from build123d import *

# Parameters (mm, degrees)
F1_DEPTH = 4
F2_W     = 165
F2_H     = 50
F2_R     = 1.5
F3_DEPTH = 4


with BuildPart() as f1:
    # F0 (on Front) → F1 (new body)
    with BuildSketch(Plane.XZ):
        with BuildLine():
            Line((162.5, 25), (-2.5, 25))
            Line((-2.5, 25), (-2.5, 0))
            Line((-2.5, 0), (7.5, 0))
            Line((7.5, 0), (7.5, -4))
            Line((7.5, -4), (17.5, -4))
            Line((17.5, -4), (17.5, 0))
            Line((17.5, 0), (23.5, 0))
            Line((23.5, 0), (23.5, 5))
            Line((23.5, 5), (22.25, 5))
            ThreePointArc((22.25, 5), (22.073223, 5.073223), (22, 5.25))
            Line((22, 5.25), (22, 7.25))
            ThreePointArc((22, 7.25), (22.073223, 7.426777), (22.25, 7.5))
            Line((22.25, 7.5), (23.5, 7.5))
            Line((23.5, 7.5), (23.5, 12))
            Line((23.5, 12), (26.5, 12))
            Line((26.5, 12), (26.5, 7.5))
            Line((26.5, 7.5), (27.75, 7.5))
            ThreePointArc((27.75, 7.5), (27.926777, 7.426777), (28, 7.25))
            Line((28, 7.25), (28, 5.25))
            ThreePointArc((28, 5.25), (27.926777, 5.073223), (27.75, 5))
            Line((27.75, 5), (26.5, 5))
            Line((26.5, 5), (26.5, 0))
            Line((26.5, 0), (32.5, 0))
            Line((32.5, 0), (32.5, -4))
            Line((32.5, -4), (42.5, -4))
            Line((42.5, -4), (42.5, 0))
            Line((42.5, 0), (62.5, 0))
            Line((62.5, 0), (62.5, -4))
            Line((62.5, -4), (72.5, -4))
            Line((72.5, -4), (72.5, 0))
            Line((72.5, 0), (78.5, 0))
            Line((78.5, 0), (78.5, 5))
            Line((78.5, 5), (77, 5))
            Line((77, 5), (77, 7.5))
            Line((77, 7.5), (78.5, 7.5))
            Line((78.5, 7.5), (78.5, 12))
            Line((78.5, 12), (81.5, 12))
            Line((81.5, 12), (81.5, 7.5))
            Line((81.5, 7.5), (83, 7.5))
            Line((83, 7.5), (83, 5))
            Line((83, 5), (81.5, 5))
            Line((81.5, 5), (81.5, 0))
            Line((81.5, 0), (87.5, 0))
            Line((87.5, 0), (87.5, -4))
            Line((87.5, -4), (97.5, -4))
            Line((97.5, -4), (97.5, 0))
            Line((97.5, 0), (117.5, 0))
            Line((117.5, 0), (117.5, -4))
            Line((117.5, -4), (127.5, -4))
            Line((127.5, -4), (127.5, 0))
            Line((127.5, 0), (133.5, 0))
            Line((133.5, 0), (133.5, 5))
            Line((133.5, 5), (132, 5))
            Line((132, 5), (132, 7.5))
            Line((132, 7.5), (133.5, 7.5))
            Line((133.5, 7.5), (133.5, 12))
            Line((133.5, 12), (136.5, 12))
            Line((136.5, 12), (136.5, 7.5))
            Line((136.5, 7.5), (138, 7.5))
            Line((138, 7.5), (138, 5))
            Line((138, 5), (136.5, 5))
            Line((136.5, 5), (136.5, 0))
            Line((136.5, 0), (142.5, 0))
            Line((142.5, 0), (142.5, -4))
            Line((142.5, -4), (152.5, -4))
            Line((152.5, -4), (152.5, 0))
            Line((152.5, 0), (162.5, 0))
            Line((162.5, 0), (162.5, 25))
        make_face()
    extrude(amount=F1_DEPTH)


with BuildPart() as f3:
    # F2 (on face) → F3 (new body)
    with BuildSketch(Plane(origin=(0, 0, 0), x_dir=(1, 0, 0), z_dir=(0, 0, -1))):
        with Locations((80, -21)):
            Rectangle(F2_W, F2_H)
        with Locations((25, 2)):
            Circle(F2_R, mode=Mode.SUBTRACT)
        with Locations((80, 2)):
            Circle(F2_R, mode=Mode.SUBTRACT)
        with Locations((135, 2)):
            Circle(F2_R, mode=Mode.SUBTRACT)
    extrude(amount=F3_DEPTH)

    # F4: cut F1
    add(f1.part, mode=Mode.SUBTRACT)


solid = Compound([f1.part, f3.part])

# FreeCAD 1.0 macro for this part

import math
import FreeCAD as App
import Part
import Sketcher

V = App.Vector
Q = App.Units.Quantity

doc = App.newDocument("Part")
body = doc.addObject("PartDesign::Body", "Body")

sketch1 = body.newObject("Sketcher::SketchObject", "Sketch")
sketch1.AttachmentSupport = (doc.getObject("XZ_Plane"), [""])
sketch1.MapMode = "FlatFace"
sketch1.addGeometry(Part.LineSegment(V(162.5, 25, 0), V(-2.5, 25, 0)), False)
sketch1.addGeometry(Part.LineSegment(V(-2.5, 25, 0), V(-2.5, 0, 0)), False)
sketch1.addGeometry(Part.LineSegment(V(-2.5, 0, 0), V(7.5, 0, 0)), False)
sketch1.addGeometry(Part.LineSegment(V(7.5, 0, 0), V(7.5, -4, 0)), False)
sketch1.addGeometry(Part.LineSegment(V(7.5, -4, 0), V(17.5, -4, 0)), False)
sketch1.addGeometry(Part.LineSegment(V(17.5, -4, 0), V(17.5, 0, 0)), False)
sketch1.addGeometry(Part.LineSegment(V(17.5, 0, 0), V(23.5, 0, 0)), False)
sketch1.addGeometry(Part.LineSegment(V(23.5, 0, 0), V(23.5, 5, 0)), False)
sketch1.addGeometry(Part.LineSegment(V(23.5, 5, 0), V(22.25, 5, 0)), False)
sketch1.addGeometry(Part.ArcOfCircle(Part.Circle(V(22.25, 5.25, 0), V(0, 0, 1), 0.25), math.radians(180), math.radians(270)), False)
sketch1.addGeometry(Part.LineSegment(V(22, 5.25, 0), V(22, 7.25, 0)), False)
sketch1.addGeometry(Part.ArcOfCircle(Part.Circle(V(22.25, 7.25, 0), V(0, 0, 1), 0.25), math.radians(90), math.radians(180)), False)
sketch1.addGeometry(Part.LineSegment(V(22.25, 7.5, 0), V(23.5, 7.5, 0)), False)
sketch1.addGeometry(Part.LineSegment(V(23.5, 7.5, 0), V(23.5, 12, 0)), False)
sketch1.addGeometry(Part.LineSegment(V(23.5, 12, 0), V(26.5, 12, 0)), False)
sketch1.addGeometry(Part.LineSegment(V(26.5, 12, 0), V(26.5, 7.5, 0)), False)
sketch1.addGeometry(Part.LineSegment(V(26.5, 7.5, 0), V(27.75, 7.5, 0)), False)
sketch1.addGeometry(Part.ArcOfCircle(Part.Circle(V(27.75, 7.25, 0), V(0, 0, 1), 0.25), math.radians(0), math.radians(90)), False)
sketch1.addGeometry(Part.LineSegment(V(28, 7.25, 0), V(28, 5.25, 0)), False)
sketch1.addGeometry(Part.ArcOfCircle(Part.Circle(V(27.75, 5.25, 0), V(0, 0, 1), 0.25), math.radians(-90), math.radians(0)), False)
sketch1.addGeometry(Part.LineSegment(V(27.75, 5, 0), V(26.5, 5, 0)), False)
sketch1.addGeometry(Part.LineSegment(V(26.5, 5, 0), V(26.5, 0, 0)), False)
sketch1.addGeometry(Part.LineSegment(V(26.5, 0, 0), V(32.5, 0, 0)), False)
sketch1.addGeometry(Part.LineSegment(V(32.5, 0, 0), V(32.5, -4, 0)), False)
sketch1.addGeometry(Part.LineSegment(V(32.5, -4, 0), V(42.5, -4, 0)), False)
sketch1.addGeometry(Part.LineSegment(V(42.5, -4, 0), V(42.5, 0, 0)), False)
sketch1.addGeometry(Part.LineSegment(V(42.5, 0, 0), V(62.5, 0, 0)), False)
sketch1.addGeometry(Part.LineSegment(V(62.5, 0, 0), V(62.5, -4, 0)), False)
sketch1.addGeometry(Part.LineSegment(V(62.5, -4, 0), V(72.5, -4, 0)), False)
sketch1.addGeometry(Part.LineSegment(V(72.5, -4, 0), V(72.5, 0, 0)), False)
sketch1.addGeometry(Part.LineSegment(V(72.5, 0, 0), V(78.5, 0, 0)), False)
sketch1.addGeometry(Part.LineSegment(V(78.5, 0, 0), V(78.5, 5, 0)), False)
sketch1.addGeometry(Part.LineSegment(V(78.5, 5, 0), V(77, 5, 0)), False)
sketch1.addGeometry(Part.LineSegment(V(77, 5, 0), V(77, 7.5, 0)), False)
sketch1.addGeometry(Part.LineSegment(V(77, 7.5, 0), V(78.5, 7.5, 0)), False)
sketch1.addGeometry(Part.LineSegment(V(78.5, 7.5, 0), V(78.5, 12, 0)), False)
sketch1.addGeometry(Part.LineSegment(V(78.5, 12, 0), V(81.5, 12, 0)), False)
sketch1.addGeometry(Part.LineSegment(V(81.5, 12, 0), V(81.5, 7.5, 0)), False)
sketch1.addGeometry(Part.LineSegment(V(81.5, 7.5, 0), V(83, 7.5, 0)), False)
sketch1.addGeometry(Part.LineSegment(V(83, 7.5, 0), V(83, 5, 0)), False)
sketch1.addGeometry(Part.LineSegment(V(83, 5, 0), V(81.5, 5, 0)), False)
sketch1.addGeometry(Part.LineSegment(V(81.5, 5, 0), V(81.5, 0, 0)), False)
sketch1.addGeometry(Part.LineSegment(V(81.5, 0, 0), V(87.5, 0, 0)), False)
sketch1.addGeometry(Part.LineSegment(V(87.5, 0, 0), V(87.5, -4, 0)), False)
sketch1.addGeometry(Part.LineSegment(V(87.5, -4, 0), V(97.5, -4, 0)), False)
sketch1.addGeometry(Part.LineSegment(V(97.5, -4, 0), V(97.5, 0, 0)), False)
sketch1.addGeometry(Part.LineSegment(V(97.5, 0, 0), V(117.5, 0, 0)), False)
sketch1.addGeometry(Part.LineSegment(V(117.5, 0, 0), V(117.5, -4, 0)), False)
sketch1.addGeometry(Part.LineSegment(V(117.5, -4, 0), V(127.5, -4, 0)), False)
sketch1.addGeometry(Part.LineSegment(V(127.5, -4, 0), V(127.5, 0, 0)), False)
sketch1.addGeometry(Part.LineSegment(V(127.5, 0, 0), V(133.5, 0, 0)), False)
sketch1.addGeometry(Part.LineSegment(V(133.5, 0, 0), V(133.5, 5, 0)), False)
sketch1.addGeometry(Part.LineSegment(V(133.5, 5, 0), V(132, 5, 0)), False)
sketch1.addGeometry(Part.LineSegment(V(132, 5, 0), V(132, 7.5, 0)), False)
sketch1.addGeometry(Part.LineSegment(V(132, 7.5, 0), V(133.5, 7.5, 0)), False)
sketch1.addGeometry(Part.LineSegment(V(133.5, 7.5, 0), V(133.5, 12, 0)), False)
sketch1.addGeometry(Part.LineSegment(V(133.5, 12, 0), V(136.5, 12, 0)), False)
sketch1.addGeometry(Part.LineSegment(V(136.5, 12, 0), V(136.5, 7.5, 0)), False)
sketch1.addGeometry(Part.LineSegment(V(136.5, 7.5, 0), V(138, 7.5, 0)), False)
sketch1.addGeometry(Part.LineSegment(V(138, 7.5, 0), V(138, 5, 0)), False)
sketch1.addGeometry(Part.LineSegment(V(138, 5, 0), V(136.5, 5, 0)), False)
sketch1.addGeometry(Part.LineSegment(V(136.5, 5, 0), V(136.5, 0, 0)), False)
sketch1.addGeometry(Part.LineSegment(V(136.5, 0, 0), V(142.5, 0, 0)), False)
sketch1.addGeometry(Part.LineSegment(V(142.5, 0, 0), V(142.5, -4, 0)), False)
sketch1.addGeometry(Part.LineSegment(V(142.5, -4, 0), V(152.5, -4, 0)), False)
sketch1.addGeometry(Part.LineSegment(V(152.5, -4, 0), V(152.5, 0, 0)), False)
sketch1.addGeometry(Part.LineSegment(V(152.5, 0, 0), V(162.5, 0, 0)), False)
sketch1.addGeometry(Part.LineSegment(V(162.5, 0, 0), V(162.5, 25, 0)), False)
sketch1.addConstraint(Sketcher.Constraint("Coincident", 0, 2, 1, 1))
sketch1.addConstraint(Sketcher.Constraint("Coincident", 1, 2, 2, 1))
sketch1.addConstraint(Sketcher.Constraint("Coincident", 2, 2, 3, 1))
sketch1.addConstraint(Sketcher.Constraint("Coincident", 3, 2, 4, 1))
sketch1.addConstraint(Sketcher.Constraint("Coincident", 4, 2, 5, 1))
sketch1.addConstraint(Sketcher.Constraint("Coincident", 5, 2, 6, 1))
sketch1.addConstraint(Sketcher.Constraint("Coincident", 6, 2, 7, 1))
sketch1.addConstraint(Sketcher.Constraint("Coincident", 7, 2, 8, 1))
sketch1.addConstraint(Sketcher.Constraint("Coincident", 8, 2, 9, 2))
sketch1.addConstraint(Sketcher.Constraint("Coincident", 9, 1, 10, 1))
sketch1.addConstraint(Sketcher.Constraint("Coincident", 10, 2, 11, 2))
sketch1.addConstraint(Sketcher.Constraint("Coincident", 11, 1, 12, 1))
sketch1.addConstraint(Sketcher.Constraint("Coincident", 12, 2, 13, 1))
sketch1.addConstraint(Sketcher.Constraint("Coincident", 13, 2, 14, 1))
sketch1.addConstraint(Sketcher.Constraint("Coincident", 14, 2, 15, 1))
sketch1.addConstraint(Sketcher.Constraint("Coincident", 15, 2, 16, 1))
sketch1.addConstraint(Sketcher.Constraint("Coincident", 16, 2, 17, 2))
sketch1.addConstraint(Sketcher.Constraint("Coincident", 17, 1, 18, 1))
sketch1.addConstraint(Sketcher.Constraint("Coincident", 18, 2, 19, 2))
sketch1.addConstraint(Sketcher.Constraint("Coincident", 19, 1, 20, 1))
sketch1.addConstraint(Sketcher.Constraint("Coincident", 20, 2, 21, 1))
sketch1.addConstraint(Sketcher.Constraint("Coincident", 21, 2, 22, 1))
sketch1.addConstraint(Sketcher.Constraint("Coincident", 22, 2, 23, 1))
sketch1.addConstraint(Sketcher.Constraint("Coincident", 23, 2, 24, 1))
sketch1.addConstraint(Sketcher.Constraint("Coincident", 24, 2, 25, 1))
sketch1.addConstraint(Sketcher.Constraint("Coincident", 25, 2, 26, 1))
sketch1.addConstraint(Sketcher.Constraint("Coincident", 26, 2, 27, 1))
sketch1.addConstraint(Sketcher.Constraint("Coincident", 27, 2, 28, 1))
sketch1.addConstraint(Sketcher.Constraint("Coincident", 28, 2, 29, 1))
sketch1.addConstraint(Sketcher.Constraint("Coincident", 29, 2, 30, 1))
sketch1.addConstraint(Sketcher.Constraint("Coincident", 30, 2, 31, 1))
sketch1.addConstraint(Sketcher.Constraint("Coincident", 31, 2, 32, 1))
sketch1.addConstraint(Sketcher.Constraint("Coincident", 32, 2, 33, 1))
sketch1.addConstraint(Sketcher.Constraint("Coincident", 33, 2, 34, 1))
sketch1.addConstraint(Sketcher.Constraint("Coincident", 34, 2, 35, 1))
sketch1.addConstraint(Sketcher.Constraint("Coincident", 35, 2, 36, 1))
sketch1.addConstraint(Sketcher.Constraint("Coincident", 36, 2, 37, 1))
sketch1.addConstraint(Sketcher.Constraint("Coincident", 37, 2, 38, 1))
sketch1.addConstraint(Sketcher.Constraint("Coincident", 38, 2, 39, 1))
sketch1.addConstraint(Sketcher.Constraint("Coincident", 39, 2, 40, 1))
sketch1.addConstraint(Sketcher.Constraint("Coincident", 40, 2, 41, 1))
sketch1.addConstraint(Sketcher.Constraint("Coincident", 41, 2, 42, 1))
sketch1.addConstraint(Sketcher.Constraint("Coincident", 42, 2, 43, 1))
sketch1.addConstraint(Sketcher.Constraint("Coincident", 43, 2, 44, 1))
sketch1.addConstraint(Sketcher.Constraint("Coincident", 44, 2, 45, 1))
sketch1.addConstraint(Sketcher.Constraint("Coincident", 45, 2, 46, 1))
sketch1.addConstraint(Sketcher.Constraint("Coincident", 46, 2, 47, 1))
sketch1.addConstraint(Sketcher.Constraint("Coincident", 47, 2, 48, 1))
sketch1.addConstraint(Sketcher.Constraint("Coincident", 48, 2, 49, 1))
sketch1.addConstraint(Sketcher.Constraint("Coincident", 49, 2, 50, 1))
sketch1.addConstraint(Sketcher.Constraint("Coincident", 50, 2, 51, 1))
sketch1.addConstraint(Sketcher.Constraint("Coincident", 51, 2, 52, 1))
sketch1.addConstraint(Sketcher.Constraint("Coincident", 52, 2, 53, 1))
sketch1.addConstraint(Sketcher.Constraint("Coincident", 53, 2, 54, 1))
sketch1.addConstraint(Sketcher.Constraint("Coincident", 54, 2, 55, 1))
sketch1.addConstraint(Sketcher.Constraint("Coincident", 55, 2, 56, 1))
sketch1.addConstraint(Sketcher.Constraint("Coincident", 56, 2, 57, 1))
sketch1.addConstraint(Sketcher.Constraint("Coincident", 57, 2, 58, 1))
sketch1.addConstraint(Sketcher.Constraint("Coincident", 58, 2, 59, 1))
sketch1.addConstraint(Sketcher.Constraint("Coincident", 59, 2, 60, 1))
sketch1.addConstraint(Sketcher.Constraint("Coincident", 60, 2, 61, 1))
sketch1.addConstraint(Sketcher.Constraint("Coincident", 61, 2, 62, 1))
sketch1.addConstraint(Sketcher.Constraint("Coincident", 62, 2, 63, 1))
sketch1.addConstraint(Sketcher.Constraint("Coincident", 63, 2, 64, 1))
sketch1.addConstraint(Sketcher.Constraint("Coincident", 64, 2, 65, 1))
sketch1.addConstraint(Sketcher.Constraint("Coincident", 65, 2, 66, 1))
sketch1.addConstraint(Sketcher.Constraint("Coincident", 66, 2, 67, 1))
sketch1.addConstraint(Sketcher.Constraint("Coincident", 67, 2, 0, 1))
sketch1.addConstraint(Sketcher.Constraint("Horizontal", 0))
sketch1.addConstraint(Sketcher.Constraint("Vertical", 1))
sketch1.addConstraint(Sketcher.Constraint("Horizontal", 2))
sketch1.addConstraint(Sketcher.Constraint("Vertical", 3))
sketch1.addConstraint(Sketcher.Constraint("Horizontal", 4))
sketch1.addConstraint(Sketcher.Constraint("Vertical", 5))
sketch1.addConstraint(Sketcher.Constraint("Horizontal", 6))
sketch1.addConstraint(Sketcher.Constraint("Vertical", 7))
sketch1.addConstraint(Sketcher.Constraint("Horizontal", 8))
sketch1.addConstraint(Sketcher.Constraint("Vertical", 10))
sketch1.addConstraint(Sketcher.Constraint("Horizontal", 12))
sketch1.addConstraint(Sketcher.Constraint("Vertical", 13))
sketch1.addConstraint(Sketcher.Constraint("Horizontal", 14))
sketch1.addConstraint(Sketcher.Constraint("Vertical", 15))
sketch1.addConstraint(Sketcher.Constraint("Horizontal", 16))
sketch1.addConstraint(Sketcher.Constraint("Vertical", 18))
sketch1.addConstraint(Sketcher.Constraint("Horizontal", 20))
sketch1.addConstraint(Sketcher.Constraint("Vertical", 21))
sketch1.addConstraint(Sketcher.Constraint("Horizontal", 22))
sketch1.addConstraint(Sketcher.Constraint("Vertical", 23))
sketch1.addConstraint(Sketcher.Constraint("Horizontal", 24))
sketch1.addConstraint(Sketcher.Constraint("Vertical", 25))
sketch1.addConstraint(Sketcher.Constraint("Horizontal", 26))
sketch1.addConstraint(Sketcher.Constraint("Vertical", 27))
sketch1.addConstraint(Sketcher.Constraint("Horizontal", 28))
sketch1.addConstraint(Sketcher.Constraint("Vertical", 29))
sketch1.addConstraint(Sketcher.Constraint("Horizontal", 30))
sketch1.addConstraint(Sketcher.Constraint("Vertical", 31))
sketch1.addConstraint(Sketcher.Constraint("Horizontal", 32))
sketch1.addConstraint(Sketcher.Constraint("Vertical", 33))
sketch1.addConstraint(Sketcher.Constraint("Horizontal", 34))
sketch1.addConstraint(Sketcher.Constraint("Vertical", 35))
sketch1.addConstraint(Sketcher.Constraint("Horizontal", 36))
sketch1.addConstraint(Sketcher.Constraint("Vertical", 37))
sketch1.addConstraint(Sketcher.Constraint("Horizontal", 38))
sketch1.addConstraint(Sketcher.Constraint("Vertical", 39))
sketch1.addConstraint(Sketcher.Constraint("Horizontal", 40))
sketch1.addConstraint(Sketcher.Constraint("Vertical", 41))
sketch1.addConstraint(Sketcher.Constraint("Horizontal", 42))
sketch1.addConstraint(Sketcher.Constraint("Vertical", 43))
sketch1.addConstraint(Sketcher.Constraint("Horizontal", 44))
sketch1.addConstraint(Sketcher.Constraint("Vertical", 45))
sketch1.addConstraint(Sketcher.Constraint("Horizontal", 46))
sketch1.addConstraint(Sketcher.Constraint("Vertical", 47))
sketch1.addConstraint(Sketcher.Constraint("Horizontal", 48))
sketch1.addConstraint(Sketcher.Constraint("Vertical", 49))
sketch1.addConstraint(Sketcher.Constraint("Horizontal", 50))
sketch1.addConstraint(Sketcher.Constraint("Vertical", 51))
sketch1.addConstraint(Sketcher.Constraint("Horizontal", 52))
sketch1.addConstraint(Sketcher.Constraint("Vertical", 53))
sketch1.addConstraint(Sketcher.Constraint("Horizontal", 54))
sketch1.addConstraint(Sketcher.Constraint("Vertical", 55))
sketch1.addConstraint(Sketcher.Constraint("Horizontal", 56))
sketch1.addConstraint(Sketcher.Constraint("Vertical", 57))
sketch1.addConstraint(Sketcher.Constraint("Horizontal", 58))
sketch1.addConstraint(Sketcher.Constraint("Vertical", 59))
sketch1.addConstraint(Sketcher.Constraint("Horizontal", 60))
sketch1.addConstraint(Sketcher.Constraint("Vertical", 61))
sketch1.addConstraint(Sketcher.Constraint("Horizontal", 62))
sketch1.addConstraint(Sketcher.Constraint("Vertical", 63))
sketch1.addConstraint(Sketcher.Constraint("Horizontal", 64))
sketch1.addConstraint(Sketcher.Constraint("Vertical", 65))
sketch1.addConstraint(Sketcher.Constraint("Horizontal", 66))
sketch1.addConstraint(Sketcher.Constraint("Vertical", 67))
sketch1.addConstraint(Sketcher.Constraint("Equal", 9, 11))
sketch1.addConstraint(Sketcher.Constraint("Equal", 11, 17))
sketch1.addConstraint(Sketcher.Constraint("Equal", 17, 19))
sketch1.addConstraint(Sketcher.Constraint("PointOnObject", 1, 2, -1))
sketch1.addConstraint(Sketcher.Constraint("PointOnObject", 5, 2, -1))
sketch1.addConstraint(Sketcher.Constraint("PointOnObject", 21, 2, -1))
sketch1.addConstraint(Sketcher.Constraint("PointOnObject", 25, 2, -1))
sketch1.addConstraint(Sketcher.Constraint("PointOnObject", 29, 2, -1))
sketch1.addConstraint(Sketcher.Constraint("PointOnObject", 41, 2, -1))
sketch1.addConstraint(Sketcher.Constraint("PointOnObject", 45, 2, -1))
sketch1.addConstraint(Sketcher.Constraint("PointOnObject", 49, 2, -1))
sketch1.addConstraint(Sketcher.Constraint("PointOnObject", 61, 2, -1))
sketch1.addConstraint(Sketcher.Constraint("PointOnObject", 65, 2, -1))
sketch1.addConstraint(Sketcher.Constraint("Horizontal", 11, 3, 17, 3))
sketch1.addConstraint(Sketcher.Constraint("Horizontal", 9, 3, 19, 3))
sketch1.addConstraint(Sketcher.Constraint("Horizontal", 19, 3, 9, 1))
sketch1.addConstraint(Sketcher.Constraint("Horizontal", 17, 3, 10, 2))
sketch1.addConstraint(Sketcher.Constraint("Horizontal", 10, 2, 17, 1))
sketch1.addConstraint(Sketcher.Constraint("Horizontal", 9, 1, 18, 2))
sketch1.addConstraint(Sketcher.Constraint("Horizontal", 4, 2, 23, 2))
sketch1.addConstraint(Sketcher.Constraint("Horizontal", 24, 2, 27, 2))
sketch1.addConstraint(Sketcher.Constraint("Horizontal", 20, 2, 31, 2))
sketch1.addConstraint(Sketcher.Constraint("Horizontal", 16, 2, 33, 2))
sketch1.addConstraint(Sketcher.Constraint("Horizontal", 14, 2, 35, 2))
sketch1.addConstraint(Sketcher.Constraint("Horizontal", 34, 2, 37, 2))
sketch1.addConstraint(Sketcher.Constraint("Horizontal", 32, 2, 39, 2))
sketch1.addConstraint(Sketcher.Constraint("Horizontal", 28, 2, 43, 2))
sketch1.addConstraint(Sketcher.Constraint("Horizontal", 44, 2, 47, 2))
sketch1.addConstraint(Sketcher.Constraint("Horizontal", 40, 2, 51, 2))
sketch1.addConstraint(Sketcher.Constraint("Horizontal", 38, 2, 53, 2))
sketch1.addConstraint(Sketcher.Constraint("Horizontal", 36, 2, 55, 2))
sketch1.addConstraint(Sketcher.Constraint("Horizontal", 54, 2, 57, 2))
sketch1.addConstraint(Sketcher.Constraint("Horizontal", 52, 2, 59, 2))
sketch1.addConstraint(Sketcher.Constraint("Horizontal", 48, 2, 63, 2))
sketch1.addConstraint(Sketcher.Constraint("Vertical", 11, 3, 8, 2))
sketch1.addConstraint(Sketcher.Constraint("Vertical", 8, 2, 11, 1))
sketch1.addConstraint(Sketcher.Constraint("Vertical", 7, 2, 12, 2))
sketch1.addConstraint(Sketcher.Constraint("Vertical", 19, 3, 16, 2))
sketch1.addConstraint(Sketcher.Constraint("Vertical", 16, 2, 19, 1))
sketch1.addConstraint(Sketcher.Constraint("Vertical", 15, 2, 20, 2))
sketch1.addConstraint(Sketcher.Constraint("Vertical", 31, 2, 34, 2))
sketch1.addConstraint(Sketcher.Constraint("Vertical", 37, 2, 40, 2))
sketch1.addConstraint(Sketcher.Constraint("Vertical", 51, 2, 54, 2))
sketch1.addConstraint(Sketcher.Constraint("Vertical", 57, 2, 60, 2))
sketch1.addConstraint(Sketcher.Constraint("Equal", 2, 4))
sketch1.addConstraint(Sketcher.Constraint("Equal", 12, 16))
sketch1.addConstraint(Sketcher.Constraint("Equal", 6, 22))
sketch1.addConstraint(Sketcher.Constraint("Equal", 4, 24))
sketch1.addConstraint(Sketcher.Constraint("Equal", 24, 28))
sketch1.addConstraint(Sketcher.Constraint("Equal", 22, 30))
sketch1.addConstraint(Sketcher.Constraint("Equal", 14, 36))
sketch1.addConstraint(Sketcher.Constraint("Equal", 34, 38))
sketch1.addConstraint(Sketcher.Constraint("Equal", 30, 42))
sketch1.addConstraint(Sketcher.Constraint("Equal", 28, 44))
sketch1.addConstraint(Sketcher.Constraint("Equal", 26, 46))
sketch1.addConstraint(Sketcher.Constraint("Equal", 44, 48))
sketch1.addConstraint(Sketcher.Constraint("Equal", 42, 50))
sketch1.addConstraint(Sketcher.Constraint("Equal", 40, 52))
sketch1.addConstraint(Sketcher.Constraint("Equal", 36, 56))
sketch1.addConstraint(Sketcher.Constraint("Equal", 54, 58))
sketch1.addConstraint(Sketcher.Constraint("Equal", 50, 62))
sketch1.addConstraint(Sketcher.Constraint("Equal", 48, 64))
sketch1.addConstraint(Sketcher.Constraint("Equal", 64, 66))
sketch1.addConstraint(Sketcher.Constraint("DistanceX", 0, 2, 0, 1, Q("165 mm")))
sketch1.addConstraint(Sketcher.Constraint("DistanceX", 2, 1, 2, 2, Q("10 mm")))
sketch1.addConstraint(Sketcher.Constraint("DistanceX", 6, 1, 6, 2, Q("6 mm")))
sketch1.addConstraint(Sketcher.Constraint("DistanceX", 14, 1, 14, 2, Q("3 mm")))
sketch1.addConstraint(Sketcher.Constraint("DistanceY", 1, 2, 1, 1, Q("25 mm")))
sketch1.addConstraint(Sketcher.Constraint("DistanceY", 3, 2, 3, 1, Q("4 mm")))
sketch1.addConstraint(Sketcher.Constraint("DistanceY", 7, 1, 7, 2, Q("5 mm")))
sketch1.addConstraint(Sketcher.Constraint("DistanceY", 10, 1, 10, 2, Q("2 mm")))
sketch1.addConstraint(Sketcher.Constraint("Radius", 9, Q("0.249999 mm")))
sketch1.addConstraint(Sketcher.Constraint("DistanceX", 32, 2, 32, 1, Q("1.5 mm")))
sketch1.addConstraint(Sketcher.Constraint("DistanceY", 13, 1, 13, 2, Q("4.5 mm")))
sketch1.addConstraint(Sketcher.Constraint("DistanceX", -1, 1, 9, 1, Q("22 mm")))
sketch1.addConstraint(Sketcher.Constraint("DistanceX", -1, 1, 17, 1, Q("28 mm")))
pad1 = body.newObject("PartDesign::Pad", "Pad")
pad1.Profile = sketch1
pad1.Length = 4
body2 = doc.addObject("PartDesign::Body", "Body001")

sketch2 = body2.newObject("Sketcher::SketchObject", "Sketch001")
sketch2.AttachmentSupport = (doc.getObject("XY_Plane001"), [""])
sketch2.MapMode = "FlatFace"
sketch2.addGeometry(Part.LineSegment(V(-2.5, -4, 0), V(-2.5, 46, 0)), False)
sketch2.addGeometry(Part.LineSegment(V(-2.5, 46, 0), V(162.5, 46, 0)), False)
sketch2.addGeometry(Part.LineSegment(V(162.5, 46, 0), V(162.5, -4, 0)), False)
sketch2.addGeometry(Part.LineSegment(V(162.5, -4, 0), V(-2.5, -4, 0)), False)
sketch2.addGeometry(Part.Circle(V(25, -2, 0), V(0, 0, 1), 1.5), False)
sketch2.addGeometry(Part.Circle(V(80, -2, 0), V(0, 0, 1), 1.5), False)
sketch2.addGeometry(Part.Circle(V(135, -2, 0), V(0, 0, 1), 1.5), False)
sketch2.addConstraint(Sketcher.Constraint("Coincident", 0, 2, 1, 1))
sketch2.addConstraint(Sketcher.Constraint("Coincident", 1, 2, 2, 1))
sketch2.addConstraint(Sketcher.Constraint("Coincident", 2, 2, 3, 1))
sketch2.addConstraint(Sketcher.Constraint("Coincident", 3, 2, 0, 1))
sketch2.addConstraint(Sketcher.Constraint("Vertical", 0))
sketch2.addConstraint(Sketcher.Constraint("Horizontal", 1))
sketch2.addConstraint(Sketcher.Constraint("Vertical", 2))
sketch2.addConstraint(Sketcher.Constraint("Horizontal", 3))
sketch2.addConstraint(Sketcher.Constraint("Equal", 4, 5))
sketch2.addConstraint(Sketcher.Constraint("Equal", 5, 6))
sketch2.addConstraint(Sketcher.Constraint("Horizontal", 4, 3, 5, 3))
sketch2.addConstraint(Sketcher.Constraint("Horizontal", 5, 3, 6, 3))
sketch2.addConstraint(Sketcher.Constraint("Diameter", 4, Q("3 mm")))
sketch2.addConstraint(Sketcher.Constraint("DistanceX", 1, 1, 1, 2, Q("165 mm")))
sketch2.addConstraint(Sketcher.Constraint("DistanceY", 0, 1, 0, 2, Q("50 mm")))
sketch2.addConstraint(Sketcher.Constraint("DistanceX", -1, 1, 4, 3, Q("25 mm")))
sketch2.addConstraint(Sketcher.Constraint("DistanceY", 4, 3, -1, 1, Q("2 mm")))
sketch2.addConstraint(Sketcher.Constraint("DistanceX", -1, 1, 5, 3, Q("80 mm")))
sketch2.addConstraint(Sketcher.Constraint("DistanceX", -1, 1, 6, 3, Q("135 mm")))
sketch2.addConstraint(Sketcher.Constraint("DistanceY", -1, 1, 0, 2, Q("46 mm")))
sketch2.addConstraint(Sketcher.Constraint("DistanceX", 0, 2, -1, 1, Q("2.5 mm")))
pad2 = body2.newObject("PartDesign::Pad", "Pad001")
pad2.Profile = sketch2
pad2.Length = 4
pad2.Reversed = True
doc.recompute()

body3 = doc.addObject("PartDesign::Body", "Body002")
body3.BaseFeature = body
boolean = body2.newObject("PartDesign::Boolean", "Boolean")
boolean.Type = "Cut"
boolean.addObjects([body3])
doc.recompute()

doc.recompute()
